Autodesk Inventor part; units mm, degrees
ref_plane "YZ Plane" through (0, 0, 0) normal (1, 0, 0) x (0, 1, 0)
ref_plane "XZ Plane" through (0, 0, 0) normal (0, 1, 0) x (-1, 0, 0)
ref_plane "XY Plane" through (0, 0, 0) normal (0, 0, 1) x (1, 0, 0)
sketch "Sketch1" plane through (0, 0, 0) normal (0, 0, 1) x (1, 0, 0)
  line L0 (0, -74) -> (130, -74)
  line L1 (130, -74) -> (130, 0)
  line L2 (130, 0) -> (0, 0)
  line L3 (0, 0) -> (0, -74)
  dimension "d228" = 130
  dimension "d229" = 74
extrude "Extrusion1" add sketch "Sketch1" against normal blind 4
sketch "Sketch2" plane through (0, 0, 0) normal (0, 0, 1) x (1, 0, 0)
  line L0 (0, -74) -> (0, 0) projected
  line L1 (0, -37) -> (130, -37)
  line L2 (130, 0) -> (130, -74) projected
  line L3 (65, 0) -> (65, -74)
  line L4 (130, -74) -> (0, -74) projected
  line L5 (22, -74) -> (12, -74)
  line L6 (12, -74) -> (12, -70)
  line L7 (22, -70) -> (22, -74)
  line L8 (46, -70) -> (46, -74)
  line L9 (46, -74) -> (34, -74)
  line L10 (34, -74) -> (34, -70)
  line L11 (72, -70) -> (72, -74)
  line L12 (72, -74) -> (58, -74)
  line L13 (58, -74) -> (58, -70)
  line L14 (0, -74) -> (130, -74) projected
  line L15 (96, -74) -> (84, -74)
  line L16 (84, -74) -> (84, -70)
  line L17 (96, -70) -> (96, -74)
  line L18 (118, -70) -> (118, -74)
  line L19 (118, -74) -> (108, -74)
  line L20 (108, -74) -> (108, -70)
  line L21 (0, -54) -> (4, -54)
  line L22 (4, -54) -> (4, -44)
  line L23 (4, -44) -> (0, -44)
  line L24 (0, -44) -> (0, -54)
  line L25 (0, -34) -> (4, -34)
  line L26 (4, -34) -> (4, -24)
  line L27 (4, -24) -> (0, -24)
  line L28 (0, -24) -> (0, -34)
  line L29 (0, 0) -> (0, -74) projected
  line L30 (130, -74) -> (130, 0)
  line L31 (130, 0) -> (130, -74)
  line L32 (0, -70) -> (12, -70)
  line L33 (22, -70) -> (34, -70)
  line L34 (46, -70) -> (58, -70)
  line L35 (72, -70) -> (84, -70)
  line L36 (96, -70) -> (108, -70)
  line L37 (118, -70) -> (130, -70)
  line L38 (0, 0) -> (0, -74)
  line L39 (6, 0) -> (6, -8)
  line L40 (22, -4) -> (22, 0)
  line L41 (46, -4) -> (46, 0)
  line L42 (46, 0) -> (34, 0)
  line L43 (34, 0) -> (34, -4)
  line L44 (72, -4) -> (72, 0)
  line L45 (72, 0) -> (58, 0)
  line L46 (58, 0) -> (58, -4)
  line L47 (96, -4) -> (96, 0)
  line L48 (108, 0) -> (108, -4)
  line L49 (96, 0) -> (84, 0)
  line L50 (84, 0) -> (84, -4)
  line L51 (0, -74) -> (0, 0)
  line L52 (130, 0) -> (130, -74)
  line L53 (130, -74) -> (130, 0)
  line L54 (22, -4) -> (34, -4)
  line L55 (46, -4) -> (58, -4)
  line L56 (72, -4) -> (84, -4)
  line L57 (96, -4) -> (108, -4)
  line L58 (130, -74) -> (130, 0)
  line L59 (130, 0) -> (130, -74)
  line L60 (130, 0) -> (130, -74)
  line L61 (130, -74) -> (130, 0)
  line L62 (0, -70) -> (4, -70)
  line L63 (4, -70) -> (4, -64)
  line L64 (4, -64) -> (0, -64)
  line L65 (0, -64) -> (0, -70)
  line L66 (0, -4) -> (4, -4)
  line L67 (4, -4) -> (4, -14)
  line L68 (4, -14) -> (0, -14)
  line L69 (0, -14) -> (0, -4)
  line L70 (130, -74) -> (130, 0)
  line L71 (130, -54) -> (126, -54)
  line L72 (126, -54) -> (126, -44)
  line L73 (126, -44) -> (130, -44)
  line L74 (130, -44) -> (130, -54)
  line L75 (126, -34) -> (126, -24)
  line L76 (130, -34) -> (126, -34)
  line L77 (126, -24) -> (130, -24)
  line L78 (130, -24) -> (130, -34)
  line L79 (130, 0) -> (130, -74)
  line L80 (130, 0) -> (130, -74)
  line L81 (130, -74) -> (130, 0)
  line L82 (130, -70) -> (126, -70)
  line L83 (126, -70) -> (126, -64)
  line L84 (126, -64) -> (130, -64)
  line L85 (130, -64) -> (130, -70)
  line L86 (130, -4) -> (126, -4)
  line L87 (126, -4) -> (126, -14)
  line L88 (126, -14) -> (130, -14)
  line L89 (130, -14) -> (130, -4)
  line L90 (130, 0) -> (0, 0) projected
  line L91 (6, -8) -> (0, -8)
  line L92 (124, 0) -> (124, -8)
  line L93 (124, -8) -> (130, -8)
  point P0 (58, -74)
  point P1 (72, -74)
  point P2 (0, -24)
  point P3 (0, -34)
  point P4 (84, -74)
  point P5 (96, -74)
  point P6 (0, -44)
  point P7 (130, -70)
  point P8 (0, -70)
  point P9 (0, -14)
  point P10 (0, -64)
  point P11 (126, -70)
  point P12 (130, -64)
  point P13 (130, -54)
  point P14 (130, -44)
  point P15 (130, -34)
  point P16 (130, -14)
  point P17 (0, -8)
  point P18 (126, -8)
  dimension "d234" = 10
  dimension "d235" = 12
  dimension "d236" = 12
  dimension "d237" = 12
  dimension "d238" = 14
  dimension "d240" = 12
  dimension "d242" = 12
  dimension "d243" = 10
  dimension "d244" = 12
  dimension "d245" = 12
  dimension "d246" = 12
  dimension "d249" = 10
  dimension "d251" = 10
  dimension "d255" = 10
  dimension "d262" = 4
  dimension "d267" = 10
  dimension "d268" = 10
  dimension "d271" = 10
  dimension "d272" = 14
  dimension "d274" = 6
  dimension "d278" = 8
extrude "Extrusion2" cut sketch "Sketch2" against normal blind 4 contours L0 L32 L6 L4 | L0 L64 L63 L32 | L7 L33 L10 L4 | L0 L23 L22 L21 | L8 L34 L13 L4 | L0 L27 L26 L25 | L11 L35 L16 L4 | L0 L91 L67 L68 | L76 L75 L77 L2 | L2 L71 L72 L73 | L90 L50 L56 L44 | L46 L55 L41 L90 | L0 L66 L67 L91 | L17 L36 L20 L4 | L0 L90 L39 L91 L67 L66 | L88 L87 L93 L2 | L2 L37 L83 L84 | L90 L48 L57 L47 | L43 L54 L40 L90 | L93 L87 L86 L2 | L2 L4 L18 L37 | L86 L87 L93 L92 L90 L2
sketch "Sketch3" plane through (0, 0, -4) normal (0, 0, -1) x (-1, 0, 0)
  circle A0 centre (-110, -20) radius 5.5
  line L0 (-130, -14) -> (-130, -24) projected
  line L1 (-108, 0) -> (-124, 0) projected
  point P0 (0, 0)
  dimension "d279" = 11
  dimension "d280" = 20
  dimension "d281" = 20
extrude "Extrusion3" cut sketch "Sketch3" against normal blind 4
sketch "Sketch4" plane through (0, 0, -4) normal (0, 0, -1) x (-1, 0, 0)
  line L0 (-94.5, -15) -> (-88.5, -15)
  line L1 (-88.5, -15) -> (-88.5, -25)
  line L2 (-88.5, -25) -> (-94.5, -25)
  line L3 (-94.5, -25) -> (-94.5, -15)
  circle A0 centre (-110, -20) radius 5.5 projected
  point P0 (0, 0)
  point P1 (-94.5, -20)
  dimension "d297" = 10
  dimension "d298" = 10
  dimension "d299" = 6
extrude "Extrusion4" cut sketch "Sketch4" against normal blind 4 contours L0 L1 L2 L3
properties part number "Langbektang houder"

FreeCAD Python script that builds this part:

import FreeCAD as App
import Part
import Sketcher
Q = App.Units.Quantity

doc = App.newDocument("Part")
body = doc.addObject("PartDesign::Body", "Body")

sketch1 = doc.addObject("Sketcher::SketchObject", "Sketch")
body.addObject(sketch1)
sketch1.AttachmentSupport = (doc.XY_Plane, [""])
sketch1.MapMode = "FlatFace"
sketch1.addGeometry([
    Part.LineSegment(App.Vector(0, 0, 0), App.Vector(0, -74, 0)),
    Part.LineSegment(App.Vector(0, -74, 0), App.Vector(130, -74, 0)),
    Part.LineSegment(App.Vector(130, -74, 0), App.Vector(130, 0, 0)),
    Part.LineSegment(App.Vector(130, 0, 0), App.Vector(0, 0, 0)),
], False)
sketch1.addConstraint([
    Sketcher.Constraint("Coincident", 0, 2, 1, 1),
    Sketcher.Constraint("Coincident", 1, 2, 2, 1),
    Sketcher.Constraint("Coincident", 2, 2, 3, 1),
    Sketcher.Constraint("Coincident", 3, 2, 0, 1),
    Sketcher.Constraint("Vertical", 0),
    Sketcher.Constraint("Horizontal", 1),
    Sketcher.Constraint("Vertical", 2),
    Sketcher.Constraint("Horizontal", 3),
    Sketcher.Constraint("Coincident", 3, 2, -1, 1),
    Sketcher.Constraint("DistanceX", 1, 1, 1, 2, Q("130 mm")),
    Sketcher.Constraint("DistanceY", 0, 2, 0, 1, Q("74 mm")),
])
pad1 = doc.addObject("PartDesign::Pad", "Pad")
body.addObject(pad1)
pad1.Profile = sketch1
pad1.Length = 4
pad1.Reversed = True

sketch2 = doc.addObject("Sketcher::SketchObject", "Sketch001")
body.addObject(sketch2)
sketch2.AttachmentSupport = (doc.XY_Plane, [""])
sketch2.MapMode = "FlatFace"
sketch2.addGeometry([
    Part.LineSegment(App.Vector(0, -74, 0), App.Vector(12, -74, 0)),
    Part.LineSegment(App.Vector(12, -74, 0), App.Vector(12, -70, 0)),
    Part.LineSegment(App.Vector(12, -70, 0), App.Vector(4, -70, 0)),
    Part.LineSegment(App.Vector(4, -70, 0), App.Vector(4, -64, 0)),
    Part.LineSegment(App.Vector(4, -64, 0), App.Vector(0, -64, 0)),
    Part.LineSegment(App.Vector(0, -64, 0), App.Vector(0, -74, 0)),
    Part.LineSegment(App.Vector(22, -70, 0), App.Vector(22, -74, 0)),
    Part.LineSegment(App.Vector(22, -74, 0), App.Vector(34, -74, 0)),
    Part.LineSegment(App.Vector(34, -74, 0), App.Vector(34, -70, 0)),
    Part.LineSegment(App.Vector(34, -70, 0), App.Vector(22, -70, 0)),
    Part.LineSegment(App.Vector(0, -44, 0), App.Vector(0, -54, 0)),
    Part.LineSegment(App.Vector(0, -54, 0), App.Vector(4, -54, 0)),
    Part.LineSegment(App.Vector(4, -54, 0), App.Vector(4, -44, 0)),
    Part.LineSegment(App.Vector(4, -44, 0), App.Vector(0, -44, 0)),
    Part.LineSegment(App.Vector(46, -70, 0), App.Vector(46, -74, 0)),
    Part.LineSegment(App.Vector(46, -74, 0), App.Vector(58, -74, 0)),
    Part.LineSegment(App.Vector(58, -74, 0), App.Vector(58, -70, 0)),
    Part.LineSegment(App.Vector(58, -70, 0), App.Vector(46, -70, 0)),
    Part.LineSegment(App.Vector(0, -24, 0), App.Vector(0, -34, 0)),
    Part.LineSegment(App.Vector(0, -34, 0), App.Vector(4, -34, 0)),
    Part.LineSegment(App.Vector(4, -34, 0), App.Vector(4, -24, 0)),
    Part.LineSegment(App.Vector(4, -24, 0), App.Vector(0, -24, 0)),
    Part.LineSegment(App.Vector(72, -70, 0), App.Vector(72, -74, 0)),
    Part.LineSegment(App.Vector(72, -74, 0), App.Vector(84, -74, 0)),
    Part.LineSegment(App.Vector(84, -74, 0), App.Vector(84, -70, 0)),
    Part.LineSegment(App.Vector(84, -70, 0), App.Vector(72, -70, 0)),
    Part.LineSegment(App.Vector(0, -14, 0), App.Vector(4, -14, 0)),
    Part.LineSegment(App.Vector(4, -14, 0), App.Vector(4, -8, 0)),
    Part.LineSegment(App.Vector(4, -8, 0), App.Vector(6, -8, 0)),
    Part.LineSegment(App.Vector(6, -8, 0), App.Vector(6, 0, 0)),
    Part.LineSegment(App.Vector(6, 0, 0), App.Vector(0, 0, 0)),
    Part.LineSegment(App.Vector(0, 0, 0), App.Vector(0, -14, 0)),
    Part.LineSegment(App.Vector(126, -34, 0), App.Vector(130, -34, 0)),
    Part.LineSegment(App.Vector(130, -34, 0), App.Vector(130, -24, 0)),
    Part.LineSegment(App.Vector(130, -24, 0), App.Vector(126, -24, 0)),
    Part.LineSegment(App.Vector(126, -24, 0), App.Vector(126, -34, 0)),
    Part.LineSegment(App.Vector(130, -54, 0), App.Vector(130, -44, 0)),
    Part.LineSegment(App.Vector(130, -44, 0), App.Vector(126, -44, 0)),
    Part.LineSegment(App.Vector(126, -44, 0), App.Vector(126, -54, 0)),
    Part.LineSegment(App.Vector(126, -54, 0), App.Vector(130, -54, 0)),
    Part.LineSegment(App.Vector(84, 0, 0), App.Vector(72, 0, 0)),
    Part.LineSegment(App.Vector(72, 0, 0), App.Vector(72, -4, 0)),
    Part.LineSegment(App.Vector(72, -4, 0), App.Vector(84, -4, 0)),
    Part.LineSegment(App.Vector(84, -4, 0), App.Vector(84, 0, 0)),
    Part.LineSegment(App.Vector(58, -4, 0), App.Vector(58, 0, 0)),
    Part.LineSegment(App.Vector(58, 0, 0), App.Vector(46, 0, 0)),
    Part.LineSegment(App.Vector(46, 0, 0), App.Vector(46, -4, 0)),
    Part.LineSegment(App.Vector(46, -4, 0), App.Vector(58, -4, 0)),
    Part.LineSegment(App.Vector(96, -70, 0), App.Vector(96, -74, 0)),
    Part.LineSegment(App.Vector(96, -74, 0), App.Vector(108, -74, 0)),
    Part.LineSegment(App.Vector(108, -74, 0), App.Vector(108, -70, 0)),
    Part.LineSegment(App.Vector(108, -70, 0), App.Vector(96, -70, 0)),
    Part.LineSegment(App.Vector(126, -14, 0), App.Vector(130, -14, 0)),
    Part.LineSegment(App.Vector(130, -14, 0), App.Vector(130, 0, 0)),
    Part.LineSegment(App.Vector(130, 0, 0), App.Vector(124, 0, 0)),
    Part.LineSegment(App.Vector(124, 0, 0), App.Vector(124, -8, 0)),
    Part.LineSegment(App.Vector(124, -8, 0), App.Vector(126, -8, 0)),
    Part.LineSegment(App.Vector(126, -8, 0), App.Vector(126, -14, 0)),
    Part.LineSegment(App.Vector(130, -64, 0), App.Vector(126, -64, 0)),
    Part.LineSegment(App.Vector(126, -64, 0), App.Vector(126, -70, 0)),
    Part.LineSegment(App.Vector(126, -70, 0), App.Vector(118, -70, 0)),
    Part.LineSegment(App.Vector(118, -70, 0), App.Vector(118, -74, 0)),
    Part.LineSegment(App.Vector(118, -74, 0), App.Vector(130, -74, 0)),
    Part.LineSegment(App.Vector(130, -74, 0), App.Vector(130, -64, 0)),
    Part.LineSegment(App.Vector(108, 0, 0), App.Vector(96, 0, 0)),
    Part.LineSegment(App.Vector(96, 0, 0), App.Vector(96, -4, 0)),
    Part.LineSegment(App.Vector(96, -4, 0), App.Vector(108, -4, 0)),
    Part.LineSegment(App.Vector(108, -4, 0), App.Vector(108, 0, 0)),
    Part.LineSegment(App.Vector(34, -4, 0), App.Vector(34, 0, 0)),
    Part.LineSegment(App.Vector(34, 0, 0), App.Vector(22, 0, 0)),
    Part.LineSegment(App.Vector(22, 0, 0), App.Vector(22, -4, 0)),
    Part.LineSegment(App.Vector(22, -4, 0), App.Vector(34, -4, 0)),
], False)
sketch2.addConstraint([
    Sketcher.Constraint("Coincident", 0, 2, 1, 1),
    Sketcher.Constraint("Coincident", 1, 2, 2, 1),
    Sketcher.Constraint("Coincident", 2, 2, 3, 1),
    Sketcher.Constraint("Coincident", 3, 2, 4, 1),
    Sketcher.Constraint("Coincident", 4, 2, 5, 1),
    Sketcher.Constraint("Coincident", 5, 2, 0, 1),
    Sketcher.Constraint("Coincident", 6, 2, 7, 1),
    Sketcher.Constraint("Coincident", 7, 2, 8, 1),
    Sketcher.Constraint("Coincident", 8, 2, 9, 1),
    Sketcher.Constraint("Coincident", 9, 2, 6, 1),
    Sketcher.Constraint("Coincident", 10, 2, 11, 1),
    Sketcher.Constraint("Coincident", 11, 2, 12, 1),
    Sketcher.Constraint("Coincident", 12, 2, 13, 1),
    Sketcher.Constraint("Coincident", 13, 2, 10, 1),
    Sketcher.Constraint("Coincident", 14, 2, 15, 1),
    Sketcher.Constraint("Coincident", 15, 2, 16, 1),
    Sketcher.Constraint("Coincident", 16, 2, 17, 1),
    Sketcher.Constraint("Coincident", 17, 2, 14, 1),
    Sketcher.Constraint("Coincident", 18, 2, 19, 1),
    Sketcher.Constraint("Coincident", 19, 2, 20, 1),
    Sketcher.Constraint("Coincident", 20, 2, 21, 1),
    Sketcher.Constraint("Coincident", 21, 2, 18, 1),
    Sketcher.Constraint("Coincident", 22, 2, 23, 1),
    Sketcher.Constraint("Coincident", 23, 2, 24, 1),
    Sketcher.Constraint("Coincident", 24, 2, 25, 1),
    Sketcher.Constraint("Coincident", 25, 2, 22, 1),
    Sketcher.Constraint("Coincident", 26, 2, 27, 1),
    Sketcher.Constraint("Coincident", 27, 2, 28, 1),
    Sketcher.Constraint("Coincident", 28, 2, 29, 1),
    Sketcher.Constraint("Coincident", 29, 2, 30, 1),
    Sketcher.Constraint("Coincident", 30, 2, 31, 1),
    Sketcher.Constraint("Coincident", 31, 2, 26, 1),
    Sketcher.Constraint("Coincident", 32, 2, 33, 1),
    Sketcher.Constraint("Coincident", 33, 2, 34, 1),
    Sketcher.Constraint("Coincident", 34, 2, 35, 1),
    Sketcher.Constraint("Coincident", 35, 2, 32, 1),
    Sketcher.Constraint("Coincident", 36, 2, 37, 1),
    Sketcher.Constraint("Coincident", 37, 2, 38, 1),
    Sketcher.Constraint("Coincident", 38, 2, 39, 1),
    Sketcher.Constraint("Coincident", 39, 2, 36, 1),
    Sketcher.Constraint("Coincident", 40, 2, 41, 1),
    Sketcher.Constraint("Coincident", 41, 2, 42, 1),
    Sketcher.Constraint("Coincident", 42, 2, 43, 1),
    Sketcher.Constraint("Coincident", 43, 2, 40, 1),
    Sketcher.Constraint("Coincident", 44, 2, 45, 1),
    Sketcher.Constraint("Coincident", 45, 2, 46, 1),
    Sketcher.Constraint("Coincident", 46, 2, 47, 1),
    Sketcher.Constraint("Coincident", 47, 2, 44, 1),
    Sketcher.Constraint("Coincident", 48, 2, 49, 1),
    Sketcher.Constraint("Coincident", 49, 2, 50, 1),
    Sketcher.Constraint("Coincident", 50, 2, 51, 1),
    Sketcher.Constraint("Coincident", 51, 2, 48, 1),
    Sketcher.Constraint("Coincident", 52, 2, 53, 1),
    Sketcher.Constraint("Coincident", 53, 2, 54, 1),
    Sketcher.Constraint("Coincident", 54, 2, 55, 1),
    Sketcher.Constraint("Coincident", 55, 2, 56, 1),
    Sketcher.Constraint("Coincident", 56, 2, 57, 1),
    Sketcher.Constraint("Coincident", 57, 2, 52, 1),
    Sketcher.Constraint("Coincident", 58, 2, 59, 1),
    Sketcher.Constraint("Coincident", 59, 2, 60, 1),
    Sketcher.Constraint("Coincident", 60, 2, 61, 1),
    Sketcher.Constraint("Coincident", 61, 2, 62, 1),
    Sketcher.Constraint("Coincident", 62, 2, 63, 1),
    Sketcher.Constraint("Coincident", 63, 2, 58, 1),
    Sketcher.Constraint("Coincident", 64, 2, 65, 1),
    Sketcher.Constraint("Coincident", 65, 2, 66, 1),
    Sketcher.Constraint("Coincident", 66, 2, 67, 1),
    Sketcher.Constraint("Coincident", 67, 2, 64, 1),
    Sketcher.Constraint("Coincident", 68, 2, 69, 1),
    Sketcher.Constraint("Coincident", 69, 2, 70, 1),
    Sketcher.Constraint("Coincident", 70, 2, 71, 1),
    Sketcher.Constraint("Coincident", 71, 2, 68, 1),
    Sketcher.Constraint("Horizontal", 0),
    Sketcher.Constraint("Vertical", 1),
    Sketcher.Constraint("Horizontal", 2),
    Sketcher.Constraint("Vertical", 3),
    Sketcher.Constraint("Horizontal", 4),
    Sketcher.Constraint("Vertical", 5),
    Sketcher.Constraint("Vertical", 6),
    Sketcher.Constraint("Horizontal", 7),
    Sketcher.Constraint("Vertical", 8),
    Sketcher.Constraint("Horizontal", 9),
    Sketcher.Constraint("Vertical", 10),
    Sketcher.Constraint("Horizontal", 11),
    Sketcher.Constraint("Vertical", 12),
    Sketcher.Constraint("Horizontal", 13),
    Sketcher.Constraint("Vertical", 14),
    Sketcher.Constraint("Horizontal", 15),
    Sketcher.Constraint("Vertical", 16),
    Sketcher.Constraint("Horizontal", 17),
    Sketcher.Constraint("Vertical", 18),
    Sketcher.Constraint("Horizontal", 19),
    Sketcher.Constraint("Vertical", 20),
    Sketcher.Constraint("Horizontal", 21),
    Sketcher.Constraint("Vertical", 22),
    Sketcher.Constraint("Horizontal", 23),
    Sketcher.Constraint("Vertical", 24),
    Sketcher.Constraint("Horizontal", 25),
    Sketcher.Constraint("Horizontal", 26),
    Sketcher.Constraint("Vertical", 27),
    Sketcher.Constraint("Horizontal", 28),
    Sketcher.Constraint("Vertical", 29),
    Sketcher.Constraint("Horizontal", 30),
    Sketcher.Constraint("Vertical", 31),
    Sketcher.Constraint("Horizontal", 32),
    Sketcher.Constraint("Vertical", 33),
    Sketcher.Constraint("Horizontal", 34),
    Sketcher.Constraint("Vertical", 35),
    Sketcher.Constraint("Vertical", 36),
    Sketcher.Constraint("Horizontal", 37),
    Sketcher.Constraint("Vertical", 38),
    Sketcher.Constraint("Horizontal", 39),
    Sketcher.Constraint("Horizontal", 40),
    Sketcher.Constraint("Vertical", 41),
    Sketcher.Constraint("Horizontal", 42),
    Sketcher.Constraint("Vertical", 43),
    Sketcher.Constraint("Vertical", 44),
    Sketcher.Constraint("Horizontal", 45),
    Sketcher.Constraint("Vertical", 46),
    Sketcher.Constraint("Horizontal", 47),
    Sketcher.Constraint("Vertical", 48),
    Sketcher.Constraint("Horizontal", 49),
    Sketcher.Constraint("Vertical", 50),
    Sketcher.Constraint("Horizontal", 51),
    Sketcher.Constraint("Horizontal", 52),
    Sketcher.Constraint("Vertical", 53),
    Sketcher.Constraint("Horizontal", 54),
    Sketcher.Constraint("Vertical", 55),
    Sketcher.Constraint("Horizontal", 56),
    Sketcher.Constraint("Vertical", 57),
    Sketcher.Constraint("Horizontal", 58),
    Sketcher.Constraint("Vertical", 59),
    Sketcher.Constraint("Horizontal", 60),
    Sketcher.Constraint("Vertical", 61),
    Sketcher.Constraint("Horizontal", 62),
    Sketcher.Constraint("Vertical", 63),
    Sketcher.Constraint("Horizontal", 64),
    Sketcher.Constraint("Vertical", 65),
    Sketcher.Constraint("Horizontal", 66),
    Sketcher.Constraint("Vertical", 67),
    Sketcher.Constraint("Vertical", 68),
    Sketcher.Constraint("Horizontal", 69),
    Sketcher.Constraint("Vertical", 70),
    Sketcher.Constraint("Horizontal", 71),
    Sketcher.Constraint("Coincident", 30, 2, -1, 1),
    Sketcher.Constraint("PointOnObject", 4, 2, -2),
    Sketcher.Constraint("PointOnObject", 10, 2, -2),
    Sketcher.Constraint("PointOnObject", 18, 2, -2),
    Sketcher.Constraint("PointOnObject", 40, 2, -1),
    Sketcher.Constraint("PointOnObject", 44, 2, -1),
    Sketcher.Constraint("PointOnObject", 53, 2, -1),
    Sketcher.Constraint("PointOnObject", 64, 2, -1),
    Sketcher.Constraint("PointOnObject", 68, 2, -1),
    Sketcher.Constraint("Horizontal", 5, 2, 6, 2),
    Sketcher.Constraint("Horizontal", 2, 2, 8, 2),
    Sketcher.Constraint("Horizontal", 7, 2, 14, 2),
    Sketcher.Constraint("Horizontal", 9, 2, 16, 2),
    Sketcher.Constraint("Horizontal", 15, 2, 22, 2),
    Sketcher.Constraint("Horizontal", 17, 2, 24, 2),
    Sketcher.Constraint("Horizontal", 19, 2, 32, 2),
    Sketcher.Constraint("Horizontal", 21, 2, 33, 2),
    Sketcher.Constraint("Horizontal", 13, 2, 36, 2),
    Sketcher.Constraint("Horizontal", 11, 2, 38, 2),
    Sketcher.Constraint("Horizontal", 42, 2, 46, 2),
    Sketcher.Constraint("Horizontal", 23, 2, 48, 2),
    Sketcher.Constraint("Horizontal", 25, 2, 50, 2),
    Sketcher.Constraint("Horizontal", 31, 2, 52, 2),
    Sketcher.Constraint("Horizontal", 28, 2, 55, 2),
    Sketcher.Constraint("Horizontal", 4, 2, 58, 2),
    Sketcher.Constraint("Horizontal", 51, 2, 59, 2),
    Sketcher.Constraint("Horizontal", 49, 2, 61, 2),
    Sketcher.Constraint("Horizontal", 47, 2, 65, 2),
    Sketcher.Constraint("Horizontal", 66, 2, 70, 2),
    Sketcher.Constraint("Vertical", 3, 2, 11, 2),
    Sketcher.Constraint("Vertical", 12, 2, 19, 2),
    Sketcher.Constraint("Vertical", 20, 2, 26, 2),
    Sketcher.Constraint("Vertical", 33, 2, 36, 2),
    Sketcher.Constraint("Vertical", 35, 2, 37, 2),
    Sketcher.Constraint("Vertical", 25, 2, 40, 2),
    Sketcher.Constraint("Vertical", 24, 2, 42, 2),
    Sketcher.Constraint("Vertical", 16, 2, 44, 2),
    Sketcher.Constraint("Vertical", 17, 2, 45, 2),
    Sketcher.Constraint("Vertical", 39, 2, 52, 2),
    Sketcher.Constraint("Vertical", 38, 2, 56, 2),
    Sketcher.Constraint("Vertical", 57, 2, 58, 2),
    Sketcher.Constraint("Vertical", 53, 2, 62, 2),
    Sketcher.Constraint("Vertical", 51, 2, 64, 2),
    Sketcher.Constraint("Vertical", 50, 2, 66, 2),
    Sketcher.Constraint("Vertical", 8, 2, 68, 2),
    Sketcher.Constraint("Vertical", 9, 2, 69, 2),
    Sketcher.Constraint("Equal", 0, 7),
    Sketcher.Constraint("Equal", 9, 15),
    Sketcher.Constraint("Equal", 17, 23),
    Sketcher.Constraint("Equal", 26, 32),
    Sketcher.Constraint("Equal", 47, 49),
    Sketcher.Constraint("Equal", 30, 54),
    Sketcher.Constraint("Equal", 2, 60),
    Sketcher.Constraint("Equal", 58, 1),
    Sketcher.Constraint("Equal", 54, 3),
    Sketcher.Constraint("Equal", 5, 10),
    Sketcher.Constraint("Equal", 12, 18),
    Sketcher.Constraint("Equal", 3, 27),
    Sketcher.Constraint("Equal", 60, 29),
    Sketcher.Constraint("Equal", 24, 41),
    Sketcher.Constraint("DistanceX", 0, 1, 0, 2, Q("12 mm")),
    Sketcher.Constraint("DistanceX", 2, 2, 2, 1, Q("8 mm")),
    Sketcher.Constraint("DistanceX", 30, 2, 30, 1, Q("6 mm")),
    Sketcher.Constraint("DistanceY", 0, 2, -1, 1, Q("74 mm")),
    Sketcher.Constraint("DistanceX", -1, 1, 6, 2, Q("22 mm")),
    Sketcher.Constraint("DistanceY", 10, 2, -1, 1, Q("54 mm")),
    Sketcher.Constraint("DistanceX", -1, 1, 14, 2, Q("46 mm")),
    Sketcher.Constraint("DistanceY", 18, 2, -1, 1, Q("34 mm")),
    Sketcher.Constraint("DistanceX", -1, 1, 22, 2, Q("72 mm")),
    Sketcher.Constraint("DistanceX", -1, 1, 32, 2, Q("130 mm")),
    Sketcher.Constraint("DistanceX", -1, 1, 48, 2, Q("96 mm")),
])
pocket1 = doc.addObject("PartDesign::Pocket", "Pocket")
body.addObject(pocket1)
pocket1.Profile = sketch2
pocket1.Length = 4

sketch3 = doc.addObject("Sketcher::SketchObject", "Sketch002")
body.addObject(sketch3)
sketch3.AttachmentSupport = (doc.XY_Plane, [""])
sketch3.MapMode = "FlatFace"
sketch3.AttachmentOffset = App.Placement(App.Vector(0, 0, -4), App.Rotation())
sketch3.addGeometry(Part.Circle(App.Vector(110, -20, 0), App.Vector(0, 0, 1), 5.5), False)
sketch3.addConstraint([
    Sketcher.Constraint("Diameter", 0, Q("11 mm")),
    Sketcher.Constraint("DistanceY", 0, 3, -1, 1, Q("20 mm")),
    Sketcher.Constraint("DistanceX", -1, 1, 0, 3, Q("110 mm")),
])
pocket2 = doc.addObject("PartDesign::Pocket", "Pocket001")
body.addObject(pocket2)
pocket2.Profile = sketch3
pocket2.Length = 4
pocket2.Reversed = True

sketch4 = doc.addObject("Sketcher::SketchObject", "Sketch003")
body.addObject(sketch4)
sketch4.AttachmentSupport = (doc.XY_Plane, [""])
sketch4.MapMode = "FlatFace"
sketch4.AttachmentOffset = App.Placement(App.Vector(0, 0, -4), App.Rotation())
sketch4.addGeometry([
    Part.LineSegment(App.Vector(88.5, -15, 0), App.Vector(94.5, -15, 0)),
    Part.LineSegment(App.Vector(94.5, -15, 0), App.Vector(94.5, -25, 0)),
    Part.LineSegment(App.Vector(94.5, -25, 0), App.Vector(88.5, -25, 0)),
    Part.LineSegment(App.Vector(88.5, -25, 0), App.Vector(88.5, -15, 0)),
], False)
sketch4.addConstraint([
    Sketcher.Constraint("Coincident", 0, 2, 1, 1),
    Sketcher.Constraint("Coincident", 1, 2, 2, 1),
    Sketcher.Constraint("Coincident", 2, 2, 3, 1),
    Sketcher.Constraint("Coincident", 3, 2, 0, 1),
    Sketcher.Constraint("Horizontal", 0),
    Sketcher.Constraint("Vertical", 1),
    Sketcher.Constraint("Horizontal", 2),
    Sketcher.Constraint("Vertical", 3),
    Sketcher.Constraint("DistanceX", 0, 1, 0, 2, Q("6 mm")),
    Sketcher.Constraint("DistanceY", 1, 2, 1, 1, Q("10 mm")),
    Sketcher.Constraint("DistanceY", 0, 2, -1, 1, Q("15 mm")),
    Sketcher.Constraint("DistanceX", -1, 1, 0, 2, Q("94.5 mm")),
])
pocket3 = doc.addObject("PartDesign::Pocket", "Pocket002")
body.addObject(pocket3)
pocket3.Profile = sketch4
pocket3.Length = 4
pocket3.Reversed = True

doc.recompute()
